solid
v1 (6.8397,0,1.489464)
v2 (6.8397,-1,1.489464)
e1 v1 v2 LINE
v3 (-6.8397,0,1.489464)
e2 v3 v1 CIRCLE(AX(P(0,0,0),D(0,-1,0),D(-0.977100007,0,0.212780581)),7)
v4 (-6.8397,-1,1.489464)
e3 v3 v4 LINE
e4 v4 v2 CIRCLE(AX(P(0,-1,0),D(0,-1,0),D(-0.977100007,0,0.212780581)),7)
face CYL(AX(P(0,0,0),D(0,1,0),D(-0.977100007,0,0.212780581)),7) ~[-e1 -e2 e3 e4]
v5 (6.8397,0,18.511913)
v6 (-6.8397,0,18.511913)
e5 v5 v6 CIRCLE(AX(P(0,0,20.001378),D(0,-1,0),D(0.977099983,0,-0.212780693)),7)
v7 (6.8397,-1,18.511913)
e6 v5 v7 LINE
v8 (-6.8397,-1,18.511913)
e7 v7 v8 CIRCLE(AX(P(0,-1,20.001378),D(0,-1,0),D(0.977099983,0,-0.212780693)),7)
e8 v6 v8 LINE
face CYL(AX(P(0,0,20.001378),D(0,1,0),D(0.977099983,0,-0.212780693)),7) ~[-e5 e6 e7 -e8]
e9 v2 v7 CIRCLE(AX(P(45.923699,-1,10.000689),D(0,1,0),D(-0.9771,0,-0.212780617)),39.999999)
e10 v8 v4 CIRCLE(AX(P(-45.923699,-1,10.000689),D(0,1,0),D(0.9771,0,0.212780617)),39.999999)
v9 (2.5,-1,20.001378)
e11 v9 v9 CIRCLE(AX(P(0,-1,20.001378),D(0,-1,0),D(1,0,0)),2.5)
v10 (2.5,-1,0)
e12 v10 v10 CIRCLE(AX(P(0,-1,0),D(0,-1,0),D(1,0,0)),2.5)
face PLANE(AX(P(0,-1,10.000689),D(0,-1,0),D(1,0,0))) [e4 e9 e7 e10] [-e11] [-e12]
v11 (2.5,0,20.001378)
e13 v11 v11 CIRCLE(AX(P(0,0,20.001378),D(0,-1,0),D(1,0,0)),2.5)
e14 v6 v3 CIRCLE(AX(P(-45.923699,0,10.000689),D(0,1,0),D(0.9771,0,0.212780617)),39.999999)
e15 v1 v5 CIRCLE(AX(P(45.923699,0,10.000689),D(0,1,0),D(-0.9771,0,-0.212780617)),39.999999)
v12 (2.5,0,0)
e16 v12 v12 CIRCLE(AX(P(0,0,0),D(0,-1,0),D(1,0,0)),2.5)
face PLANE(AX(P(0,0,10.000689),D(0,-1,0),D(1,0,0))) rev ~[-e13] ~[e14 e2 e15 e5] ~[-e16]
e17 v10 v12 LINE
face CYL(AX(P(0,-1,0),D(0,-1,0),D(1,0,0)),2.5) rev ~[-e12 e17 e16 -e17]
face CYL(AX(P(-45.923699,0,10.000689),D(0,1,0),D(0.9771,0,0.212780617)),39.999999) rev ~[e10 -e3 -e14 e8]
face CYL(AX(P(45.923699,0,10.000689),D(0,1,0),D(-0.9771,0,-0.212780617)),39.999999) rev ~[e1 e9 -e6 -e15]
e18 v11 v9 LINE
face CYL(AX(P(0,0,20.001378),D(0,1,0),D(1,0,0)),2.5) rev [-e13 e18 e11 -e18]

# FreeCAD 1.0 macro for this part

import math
import FreeCAD as App
import Part
import Sketcher

V = App.Vector

doc = App.newDocument("Part")
body = doc.addObject("PartDesign::Body", "Body")

sketch1 = body.newObject("Sketcher::SketchObject", "Sketch")
sketch1.AttachmentSupport = (doc.getObject("XZ_Plane"), [""])
sketch1.MapMode = "FlatFace"
sketch1.addGeometry(Part.ArcOfCircle(Part.Circle(V(-45.923699, 10.000689, 0), V(0, 0, 1), 39.999999), math.radians(-12.285353), math.radians(12.285353)), False)
sketch1.addGeometry(Part.ArcOfCircle(Part.Circle(V(0, 0, 0), V(0, 0, 1), 7), math.radians(167.714649), math.radians(372.285351)), False)
sketch1.addGeometry(Part.ArcOfCircle(Part.Circle(V(45.923699, 10.000689, 0), V(0, 0, 1), 39.999999), math.radians(167.714647), math.radians(192.285353)), False)
sketch1.addGeometry(Part.ArcOfCircle(Part.Circle(V(0, 20.001378, 0), V(0, 0, 1), 7), math.radians(-12.285358), math.radians(192.285358)), False)
sketch1.addGeometry(Part.Circle(V(0, 20.001378, 0), V(0, 0, 1), 2.5), False)
sketch1.addConstraint(Sketcher.Constraint("Tangent", 0, 1, 1, 1))
sketch1.addConstraint(Sketcher.Constraint("Tangent", 1, 2, 2, 2))
sketch1.addConstraint(Sketcher.Constraint("Tangent", 2, 1, 3, 1))
sketch1.addConstraint(Sketcher.Constraint("Tangent", 3, 2, 0, 2))
sketch1.addConstraint(Sketcher.Constraint("Coincident", 1, 3, -1, 1))
sketch1.addConstraint(Sketcher.Constraint("Coincident", 4, 3, 3, 3))
sketch1.addConstraint(Sketcher.Constraint("Equal", 0, 2))
sketch1.addConstraint(Sketcher.Constraint("Equal", 1, 3))
sketch1.addConstraint(Sketcher.Constraint("PointOnObject", 3, 3, -2))
sketch1.addConstraint(Sketcher.Constraint("Diameter", 4, 5.0))
sketch1.addConstraint(Sketcher.Constraint("Radius", 0, 39.999999))
sketch1.addConstraint(Sketcher.Constraint("Radius", 1, 7.0))
sketch1.addConstraint(Sketcher.Constraint("DistanceX", 0, 3, 0, 1, 39.083999))
pad1 = body.newObject("PartDesign::Pad", "Pad")
pad1.Profile = sketch1
pad1.Length = 1

sketch2 = body.newObject("Sketcher::SketchObject", "Sketch001")
sketch2.AttachmentSupport = (doc.getObject("XZ_Plane"), [""])
sketch2.MapMode = "FlatFace"
sketch2.AttachmentOffset = App.Placement(V(0, 0, 1), App.Rotation())
sketch2.addGeometry(Part.Circle(V(0, 0, 0), V(0, 0, 1), 2.5), False)
sketch2.addConstraint(Sketcher.Constraint("Coincident", 0, 3, -1, 1))
sketch2.addConstraint(Sketcher.Constraint("Diameter", 0, 5.0))
pocket1 = body.newObject("PartDesign::Pocket", "Pocket")
pocket1.Profile = sketch2
pocket1.Length = 1

doc.recompute()
